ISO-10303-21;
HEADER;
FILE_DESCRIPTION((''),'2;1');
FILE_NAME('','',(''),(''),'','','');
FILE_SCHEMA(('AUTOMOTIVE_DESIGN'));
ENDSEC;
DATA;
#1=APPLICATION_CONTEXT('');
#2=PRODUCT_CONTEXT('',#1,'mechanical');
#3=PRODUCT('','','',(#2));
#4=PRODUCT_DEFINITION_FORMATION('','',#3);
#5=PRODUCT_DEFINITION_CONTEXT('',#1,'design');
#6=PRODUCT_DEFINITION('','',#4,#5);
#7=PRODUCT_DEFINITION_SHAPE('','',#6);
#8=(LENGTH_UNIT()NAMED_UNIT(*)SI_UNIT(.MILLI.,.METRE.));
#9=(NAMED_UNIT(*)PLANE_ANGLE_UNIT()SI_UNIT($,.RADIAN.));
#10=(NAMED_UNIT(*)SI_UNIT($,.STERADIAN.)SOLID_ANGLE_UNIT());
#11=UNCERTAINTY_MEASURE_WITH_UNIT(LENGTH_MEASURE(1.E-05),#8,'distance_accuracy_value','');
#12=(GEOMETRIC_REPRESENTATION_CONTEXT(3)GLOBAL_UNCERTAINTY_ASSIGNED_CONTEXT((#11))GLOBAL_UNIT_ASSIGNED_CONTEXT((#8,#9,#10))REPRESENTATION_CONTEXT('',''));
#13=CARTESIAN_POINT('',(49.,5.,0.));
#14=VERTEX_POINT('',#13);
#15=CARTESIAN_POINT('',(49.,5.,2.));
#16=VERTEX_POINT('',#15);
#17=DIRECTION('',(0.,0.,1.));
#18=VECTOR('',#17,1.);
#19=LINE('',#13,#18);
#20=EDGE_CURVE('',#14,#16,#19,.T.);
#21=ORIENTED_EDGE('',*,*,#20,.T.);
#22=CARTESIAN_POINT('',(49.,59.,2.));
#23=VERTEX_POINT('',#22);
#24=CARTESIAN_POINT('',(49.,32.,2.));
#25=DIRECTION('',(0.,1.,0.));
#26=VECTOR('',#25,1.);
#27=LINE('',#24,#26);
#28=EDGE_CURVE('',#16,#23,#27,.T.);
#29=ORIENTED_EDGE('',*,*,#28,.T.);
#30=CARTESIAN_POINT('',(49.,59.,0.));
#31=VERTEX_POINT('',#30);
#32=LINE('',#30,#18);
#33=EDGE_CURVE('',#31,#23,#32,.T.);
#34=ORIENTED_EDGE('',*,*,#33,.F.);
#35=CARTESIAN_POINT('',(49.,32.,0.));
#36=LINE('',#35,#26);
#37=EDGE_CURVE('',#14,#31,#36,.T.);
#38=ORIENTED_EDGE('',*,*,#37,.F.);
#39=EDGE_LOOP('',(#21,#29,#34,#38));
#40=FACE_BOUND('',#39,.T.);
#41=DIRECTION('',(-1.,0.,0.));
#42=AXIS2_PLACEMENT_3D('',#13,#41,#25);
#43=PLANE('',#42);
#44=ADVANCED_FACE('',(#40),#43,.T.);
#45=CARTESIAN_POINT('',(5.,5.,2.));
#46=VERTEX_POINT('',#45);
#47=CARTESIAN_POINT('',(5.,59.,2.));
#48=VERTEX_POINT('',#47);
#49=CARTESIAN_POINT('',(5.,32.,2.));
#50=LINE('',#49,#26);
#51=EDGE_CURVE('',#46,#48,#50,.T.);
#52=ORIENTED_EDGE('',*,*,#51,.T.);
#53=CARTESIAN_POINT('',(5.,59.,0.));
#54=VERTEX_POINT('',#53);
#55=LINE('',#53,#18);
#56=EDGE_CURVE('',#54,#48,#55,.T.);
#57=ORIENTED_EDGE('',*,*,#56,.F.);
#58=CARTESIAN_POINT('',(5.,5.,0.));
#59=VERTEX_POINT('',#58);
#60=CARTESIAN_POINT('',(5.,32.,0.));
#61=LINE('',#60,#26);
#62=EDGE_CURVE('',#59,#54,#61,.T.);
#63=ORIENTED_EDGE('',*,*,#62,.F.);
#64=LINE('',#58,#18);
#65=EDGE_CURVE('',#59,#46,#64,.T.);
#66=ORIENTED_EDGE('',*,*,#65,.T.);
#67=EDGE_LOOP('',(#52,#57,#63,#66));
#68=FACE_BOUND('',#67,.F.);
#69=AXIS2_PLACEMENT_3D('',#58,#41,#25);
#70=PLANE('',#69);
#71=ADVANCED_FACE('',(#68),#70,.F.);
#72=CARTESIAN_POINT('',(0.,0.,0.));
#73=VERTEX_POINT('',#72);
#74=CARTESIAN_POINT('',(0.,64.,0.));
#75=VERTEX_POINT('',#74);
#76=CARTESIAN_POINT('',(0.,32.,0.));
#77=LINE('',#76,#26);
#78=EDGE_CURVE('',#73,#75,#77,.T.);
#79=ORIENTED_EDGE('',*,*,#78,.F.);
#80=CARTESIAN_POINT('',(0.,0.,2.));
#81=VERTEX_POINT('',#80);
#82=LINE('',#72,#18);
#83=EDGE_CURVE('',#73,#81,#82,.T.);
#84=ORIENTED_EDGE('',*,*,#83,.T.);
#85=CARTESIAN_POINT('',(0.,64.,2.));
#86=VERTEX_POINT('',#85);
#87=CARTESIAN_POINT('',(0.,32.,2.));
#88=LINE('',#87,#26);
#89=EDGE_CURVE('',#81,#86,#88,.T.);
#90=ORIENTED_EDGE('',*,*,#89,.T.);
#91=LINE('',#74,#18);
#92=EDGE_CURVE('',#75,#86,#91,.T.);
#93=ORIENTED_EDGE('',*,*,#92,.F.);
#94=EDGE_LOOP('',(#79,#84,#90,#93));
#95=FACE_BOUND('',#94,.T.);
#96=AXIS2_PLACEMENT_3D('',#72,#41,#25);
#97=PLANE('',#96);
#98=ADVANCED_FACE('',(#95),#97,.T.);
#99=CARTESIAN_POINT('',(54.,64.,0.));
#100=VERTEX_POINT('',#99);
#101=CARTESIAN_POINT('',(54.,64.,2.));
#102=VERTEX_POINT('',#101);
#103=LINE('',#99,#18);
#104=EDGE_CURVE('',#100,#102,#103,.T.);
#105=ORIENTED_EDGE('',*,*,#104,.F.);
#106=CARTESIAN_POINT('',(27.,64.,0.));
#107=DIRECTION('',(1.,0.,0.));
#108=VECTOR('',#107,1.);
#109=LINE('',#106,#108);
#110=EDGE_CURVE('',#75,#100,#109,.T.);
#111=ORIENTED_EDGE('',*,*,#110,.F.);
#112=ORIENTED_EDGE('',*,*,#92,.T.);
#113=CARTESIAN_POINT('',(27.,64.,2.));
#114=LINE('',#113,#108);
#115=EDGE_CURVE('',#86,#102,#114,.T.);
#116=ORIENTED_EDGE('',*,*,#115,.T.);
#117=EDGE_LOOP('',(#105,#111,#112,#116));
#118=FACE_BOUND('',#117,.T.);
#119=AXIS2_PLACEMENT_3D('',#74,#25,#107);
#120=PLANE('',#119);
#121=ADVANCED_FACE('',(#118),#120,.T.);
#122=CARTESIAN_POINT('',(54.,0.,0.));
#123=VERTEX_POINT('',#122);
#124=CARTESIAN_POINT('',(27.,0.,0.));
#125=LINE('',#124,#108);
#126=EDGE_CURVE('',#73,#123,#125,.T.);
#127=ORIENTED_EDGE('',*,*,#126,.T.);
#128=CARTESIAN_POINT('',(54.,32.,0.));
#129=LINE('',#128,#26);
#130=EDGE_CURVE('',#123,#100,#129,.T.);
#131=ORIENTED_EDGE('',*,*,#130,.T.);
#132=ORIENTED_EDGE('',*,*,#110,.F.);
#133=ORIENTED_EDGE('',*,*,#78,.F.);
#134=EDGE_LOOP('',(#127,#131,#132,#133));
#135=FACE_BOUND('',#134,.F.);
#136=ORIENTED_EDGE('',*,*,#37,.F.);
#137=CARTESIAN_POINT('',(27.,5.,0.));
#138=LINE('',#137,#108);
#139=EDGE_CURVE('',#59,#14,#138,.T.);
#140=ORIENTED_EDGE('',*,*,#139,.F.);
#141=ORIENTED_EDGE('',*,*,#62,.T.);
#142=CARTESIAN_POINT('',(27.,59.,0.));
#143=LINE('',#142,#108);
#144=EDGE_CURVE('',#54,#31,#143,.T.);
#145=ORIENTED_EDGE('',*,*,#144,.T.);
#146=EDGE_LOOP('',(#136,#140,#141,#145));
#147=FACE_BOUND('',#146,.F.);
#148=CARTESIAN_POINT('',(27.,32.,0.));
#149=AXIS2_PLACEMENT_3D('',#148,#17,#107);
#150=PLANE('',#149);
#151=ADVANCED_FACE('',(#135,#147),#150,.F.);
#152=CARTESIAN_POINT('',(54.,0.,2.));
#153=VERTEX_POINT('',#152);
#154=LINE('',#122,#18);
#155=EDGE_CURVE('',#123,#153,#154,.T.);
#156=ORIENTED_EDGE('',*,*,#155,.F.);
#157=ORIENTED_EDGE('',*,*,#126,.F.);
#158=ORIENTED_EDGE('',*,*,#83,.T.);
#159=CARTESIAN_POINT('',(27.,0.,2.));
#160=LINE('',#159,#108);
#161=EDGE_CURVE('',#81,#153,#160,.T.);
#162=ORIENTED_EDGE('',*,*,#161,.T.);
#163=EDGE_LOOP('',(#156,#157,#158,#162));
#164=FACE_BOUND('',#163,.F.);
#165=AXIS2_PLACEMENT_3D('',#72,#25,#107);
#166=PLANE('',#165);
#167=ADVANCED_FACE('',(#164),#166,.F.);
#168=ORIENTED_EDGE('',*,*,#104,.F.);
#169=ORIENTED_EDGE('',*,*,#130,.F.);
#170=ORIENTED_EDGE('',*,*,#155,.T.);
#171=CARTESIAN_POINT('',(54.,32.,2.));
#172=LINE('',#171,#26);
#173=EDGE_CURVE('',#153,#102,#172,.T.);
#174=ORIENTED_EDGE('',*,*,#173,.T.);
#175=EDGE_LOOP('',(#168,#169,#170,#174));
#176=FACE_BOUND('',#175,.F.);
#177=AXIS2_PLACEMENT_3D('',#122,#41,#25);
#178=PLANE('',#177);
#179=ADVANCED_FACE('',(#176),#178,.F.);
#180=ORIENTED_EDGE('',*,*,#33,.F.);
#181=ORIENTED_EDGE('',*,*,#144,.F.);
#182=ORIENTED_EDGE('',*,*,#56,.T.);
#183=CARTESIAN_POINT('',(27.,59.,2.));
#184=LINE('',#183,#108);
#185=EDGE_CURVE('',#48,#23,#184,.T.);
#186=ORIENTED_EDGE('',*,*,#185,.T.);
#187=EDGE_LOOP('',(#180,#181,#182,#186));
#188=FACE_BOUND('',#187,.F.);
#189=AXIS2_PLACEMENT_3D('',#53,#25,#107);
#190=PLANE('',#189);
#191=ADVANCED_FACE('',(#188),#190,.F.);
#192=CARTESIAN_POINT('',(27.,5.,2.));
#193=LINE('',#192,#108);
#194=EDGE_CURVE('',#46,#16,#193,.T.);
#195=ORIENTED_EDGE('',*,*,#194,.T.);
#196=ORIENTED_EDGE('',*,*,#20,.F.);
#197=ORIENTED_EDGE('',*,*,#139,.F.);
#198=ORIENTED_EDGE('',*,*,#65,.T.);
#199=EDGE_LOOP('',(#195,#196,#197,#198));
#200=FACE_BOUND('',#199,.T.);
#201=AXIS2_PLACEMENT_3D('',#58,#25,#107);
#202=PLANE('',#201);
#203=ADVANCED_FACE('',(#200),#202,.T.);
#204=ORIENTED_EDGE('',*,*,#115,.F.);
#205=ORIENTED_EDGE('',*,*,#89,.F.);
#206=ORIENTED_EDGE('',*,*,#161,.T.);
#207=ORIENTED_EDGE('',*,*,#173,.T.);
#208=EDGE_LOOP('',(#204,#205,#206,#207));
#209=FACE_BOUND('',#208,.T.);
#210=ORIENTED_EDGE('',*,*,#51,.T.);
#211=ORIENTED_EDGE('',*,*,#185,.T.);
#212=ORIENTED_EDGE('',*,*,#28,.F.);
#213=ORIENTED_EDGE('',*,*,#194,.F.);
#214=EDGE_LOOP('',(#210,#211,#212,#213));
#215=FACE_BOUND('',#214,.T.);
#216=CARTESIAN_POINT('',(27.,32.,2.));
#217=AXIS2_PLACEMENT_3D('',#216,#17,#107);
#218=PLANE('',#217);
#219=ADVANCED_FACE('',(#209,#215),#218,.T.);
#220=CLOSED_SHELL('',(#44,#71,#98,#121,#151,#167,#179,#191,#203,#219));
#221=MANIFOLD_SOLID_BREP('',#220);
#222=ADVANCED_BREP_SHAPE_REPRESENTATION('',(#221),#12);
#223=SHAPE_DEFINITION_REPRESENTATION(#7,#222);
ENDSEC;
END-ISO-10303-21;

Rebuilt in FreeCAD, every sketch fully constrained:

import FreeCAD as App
import Part
import Sketcher

V = App.Vector


def add_polygon(sketch, points):
    """Adds a closed chain of lines whose ends are joined by coincident constraints."""
    first, n = sketch.GeometryCount, len(points)
    for a, b in zip(points, points[1:] + points[:1]):
        sketch.addGeometry(Part.LineSegment(App.Vector(*a, 0), App.Vector(*b, 0)), False)
    for i in range(n):
        sketch.addConstraint(Sketcher.Constraint("Coincident", first + i, 2, first + (i + 1) % n, 1))

doc = App.newDocument("Part")
body = doc.addObject("PartDesign::Body", "Body")

# Sketch on XY plane
sketch1 = doc.addObject("Sketcher::SketchObject", "Sketch")
body.addObject(sketch1)
sketch1.AttachmentSupport = (doc.XY_Plane, [""])
sketch1.MapMode = "FlatFace"
add_polygon(sketch1, [(0, 64), (0, 0), (54, 0), (54, 64)])  # lines 0-3
add_polygon(sketch1, [(49, 5), (5, 5), (5, 59), (49, 59)])  # lines 4-7
sketch1.addConstraint(Sketcher.Constraint("Vertical", 0))
sketch1.addConstraint(Sketcher.Constraint("Horizontal", 1))
sketch1.addConstraint(Sketcher.Constraint("Vertical", 2))
sketch1.addConstraint(Sketcher.Constraint("Horizontal", 3))
sketch1.addConstraint(Sketcher.Constraint("Horizontal", 4))
sketch1.addConstraint(Sketcher.Constraint("Vertical", 5))
sketch1.addConstraint(Sketcher.Constraint("Horizontal", 6))
sketch1.addConstraint(Sketcher.Constraint("Vertical", 7))
sketch1.addConstraint(Sketcher.Constraint("Coincident", 0, 2, -1, 1))
sketch1.addConstraint(Sketcher.Constraint("Equal", 3, 5))
sketch1.addConstraint(Sketcher.Constraint("DistanceX", 1, 1, 1, 2, 54.0))
sketch1.addConstraint(Sketcher.Constraint("DistanceX", 4, 2, 4, 1, 44.0))
sketch1.addConstraint(Sketcher.Constraint("DistanceY", 0, 2, 0, 1, 64.0))
sketch1.addConstraint(Sketcher.Constraint("DistanceX", -1, 1, 4, 2, 5.0))
sketch1.addConstraint(Sketcher.Constraint("DistanceY", -1, 1, 4, 2, 5.0))
pad1 = doc.addObject("PartDesign::Pad", "Pad")
body.addObject(pad1)
pad1.Profile = sketch1
pad1.Length = 2

doc.recompute()
